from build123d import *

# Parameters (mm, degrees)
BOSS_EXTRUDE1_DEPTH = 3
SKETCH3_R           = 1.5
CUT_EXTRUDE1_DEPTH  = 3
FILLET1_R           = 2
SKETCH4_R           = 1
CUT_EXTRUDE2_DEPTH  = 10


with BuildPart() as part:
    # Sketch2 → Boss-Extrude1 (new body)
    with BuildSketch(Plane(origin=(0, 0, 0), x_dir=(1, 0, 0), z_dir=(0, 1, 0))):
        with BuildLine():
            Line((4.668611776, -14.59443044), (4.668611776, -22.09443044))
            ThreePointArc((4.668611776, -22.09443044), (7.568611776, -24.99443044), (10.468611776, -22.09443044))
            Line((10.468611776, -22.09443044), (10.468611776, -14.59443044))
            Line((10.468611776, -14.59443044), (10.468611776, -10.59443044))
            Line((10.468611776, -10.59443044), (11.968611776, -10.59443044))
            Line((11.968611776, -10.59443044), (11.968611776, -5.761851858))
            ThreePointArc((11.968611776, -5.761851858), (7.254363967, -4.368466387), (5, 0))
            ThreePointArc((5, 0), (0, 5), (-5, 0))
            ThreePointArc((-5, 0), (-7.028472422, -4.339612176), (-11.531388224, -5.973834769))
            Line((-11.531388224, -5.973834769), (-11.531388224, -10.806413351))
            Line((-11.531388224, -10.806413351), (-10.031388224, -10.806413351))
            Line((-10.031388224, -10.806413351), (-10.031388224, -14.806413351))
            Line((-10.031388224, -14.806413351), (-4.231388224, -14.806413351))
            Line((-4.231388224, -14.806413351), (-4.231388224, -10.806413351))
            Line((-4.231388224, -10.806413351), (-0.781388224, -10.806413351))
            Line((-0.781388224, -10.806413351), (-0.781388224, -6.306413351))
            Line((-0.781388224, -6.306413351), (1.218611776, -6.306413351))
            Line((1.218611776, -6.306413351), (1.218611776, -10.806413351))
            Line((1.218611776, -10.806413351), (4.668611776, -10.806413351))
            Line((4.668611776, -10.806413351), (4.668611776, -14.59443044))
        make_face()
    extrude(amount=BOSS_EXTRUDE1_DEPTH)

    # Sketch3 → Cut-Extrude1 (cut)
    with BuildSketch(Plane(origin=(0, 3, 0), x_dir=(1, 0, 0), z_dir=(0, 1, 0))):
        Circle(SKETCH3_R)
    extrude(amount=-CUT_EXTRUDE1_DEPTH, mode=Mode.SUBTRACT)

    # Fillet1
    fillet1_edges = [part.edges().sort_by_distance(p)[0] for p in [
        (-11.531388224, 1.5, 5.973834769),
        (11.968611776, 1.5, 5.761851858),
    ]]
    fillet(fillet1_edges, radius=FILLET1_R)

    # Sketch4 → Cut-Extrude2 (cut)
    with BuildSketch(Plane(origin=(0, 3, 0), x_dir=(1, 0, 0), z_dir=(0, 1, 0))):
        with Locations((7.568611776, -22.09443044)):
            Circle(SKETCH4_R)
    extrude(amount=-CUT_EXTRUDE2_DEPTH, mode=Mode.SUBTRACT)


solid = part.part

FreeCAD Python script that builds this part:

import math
import FreeCAD as App
import Part
import Sketcher

V = App.Vector
Q = App.Units.Quantity


def edges_at(feature, points):
    """Names of the edges that pass closest to the given points."""
    edges = feature.Shape.Edges
    near = lambda p: min(range(len(edges)), key=lambda i: edges[i].distToShape(Part.Vertex(*p))[0])
    return sorted({f"Edge{near(p) + 1}" for p in points})

doc = App.newDocument("Part")
params = doc.addObject("Spreadsheet::Sheet", "Params")
for row, (alias, value) in enumerate([
    ("sketch1_radius", "5 mm"),
    ("sketch1_radius2", "2.9 mm"),
    ("sketch1_width", "2 mm"),
    ("sketch1_height", "4 mm"),
    ("sketch1_radius3", "6.26 mm"),
    ("pad1_length", "3 mm"),
    ("sketch2_diameter", "3 mm"),
    ("pocket1_length", "3 mm"),
    ("fillet_radius", "2 mm"),
    ("sketch3_diameter", "2 mm"),
    ("pocket2_length", "10 mm"),
], start=1):
    params.set(f"A{row}", alias)
    params.set(f"B{row}", "=" + value)
    params.setAlias(f"B{row}", alias)

body = doc.addObject("PartDesign::Body", "Body")

# Sketch on XZ plane
sketch1 = body.newObject("Sketcher::SketchObject", "Sketch")
sketch1.AttachmentSupport = (doc.getObject("XZ_Plane"), [""])
sketch1.MapMode = "FlatFace"
sketch1.addGeometry([
    Part.ArcOfCircle(Part.Circle(V(7.6, 22.1, 0), V(0, 0, 1), 2.9), math.radians(0), math.radians(180)),  # 0
    Part.LineSegment(V(10.5, 22.1, 0), V(10.5, 10.6, 0)),  # 1
    Part.LineSegment(V(10.5, 10.6, 0), V(12, 10.6, 0)),  # 2
    Part.LineSegment(V(12, 10.6, 0), V(12, 5.8, 0)),  # 3
    Part.ArcOfCircle(Part.Circle(V(11.2, -0.5, 0), V(0, 0, 1), 6.3), math.radians(83), math.radians(176)),  # 4
    Part.ArcOfCircle(Part.Circle(V(0, 0, 0), V(0, 0, 1), 5), math.radians(180), math.radians(360)),  # 5
    Part.ArcOfCircle(Part.Circle(V(-11.3, -0.3, 0), V(0, 0, 1), 6.3), math.radians(3), math.radians(93)),  # 6
    Part.LineSegment(V(-11.5, 6, 0), V(-11.5, 10.8, 0)),  # 7
    Part.LineSegment(V(-11.5, 10.8, 0), V(-10, 10.8, 0)),  # 8
    Part.LineSegment(V(-10, 10.8, 0), V(-10, 14.8, 0)),  # 9
    Part.LineSegment(V(-10, 14.8, 0), V(-4.2, 14.8, 0)),  # 10
    Part.LineSegment(V(-4.2, 14.8, 0), V(-4.2, 10.8, 0)),  # 11
    Part.LineSegment(V(-4.2, 10.8, 0), V(-0.8, 10.8, 0)),  # 12
    Part.LineSegment(V(-0.8, 10.8, 0), V(-0.8, 6.3, 0)),  # 13
    Part.LineSegment(V(-0.8, 6.3, 0), V(1.2, 6.3, 0)),  # 14
    Part.LineSegment(V(1.2, 6.3, 0), V(1.2, 10.8, 0)),  # 15
    Part.LineSegment(V(1.2, 10.8, 0), V(4.7, 10.8, 0)),  # 16
    Part.LineSegment(V(4.7, 10.8, 0), V(4.7, 22.1, 0)),  # 17
], False)
sketch1.addConstraint([
    Sketcher.Constraint("Tangent", 0, 1, 1, 1),
    Sketcher.Constraint("Coincident", 1, 2, 2, 1),
    Sketcher.Constraint("Coincident", 2, 2, 3, 1),
    Sketcher.Constraint("Coincident", 3, 2, 4, 1),
    Sketcher.Constraint("Coincident", 4, 2, 5, 2),
    Sketcher.Constraint("Coincident", 5, 1, 6, 1),
    Sketcher.Constraint("Coincident", 6, 2, 7, 1),
    Sketcher.Constraint("Coincident", 7, 2, 8, 1),
    Sketcher.Constraint("Coincident", 8, 2, 9, 1),
    Sketcher.Constraint("Coincident", 9, 2, 10, 1),
    Sketcher.Constraint("Coincident", 10, 2, 11, 1),
    Sketcher.Constraint("Coincident", 11, 2, 12, 1),
    Sketcher.Constraint("Coincident", 12, 2, 13, 1),
    Sketcher.Constraint("Coincident", 13, 2, 14, 1),
    Sketcher.Constraint("Coincident", 14, 2, 15, 1),
    Sketcher.Constraint("Coincident", 15, 2, 16, 1),
    Sketcher.Constraint("Coincident", 16, 2, 17, 1),
    Sketcher.Constraint("Tangent", 17, 2, 0, 2),
    Sketcher.Constraint("Vertical", 1),
    Sketcher.Constraint("Horizontal", 2),
    Sketcher.Constraint("Vertical", 3),
    Sketcher.Constraint("Vertical", 7),
    Sketcher.Constraint("Horizontal", 8),
    Sketcher.Constraint("Vertical", 9),
    Sketcher.Constraint("Horizontal", 10),
    Sketcher.Constraint("Vertical", 11),
    Sketcher.Constraint("Horizontal", 12),
    Sketcher.Constraint("Vertical", 13),
    Sketcher.Constraint("Horizontal", 14),
    Sketcher.Constraint("Vertical", 15),
    Sketcher.Constraint("Horizontal", 16),
    Sketcher.Constraint("Vertical", 17),
    Sketcher.Constraint("Coincident", 5, 3, -1, 1),
    Sketcher.Constraint("PointOnObject", 4, 2, -1),
    Sketcher.Constraint("PointOnObject", 5, 1, -1),
    Sketcher.Constraint("Horizontal", 8, 2, 11, 2),
    Sketcher.Constraint("Horizontal", 12, 2, 15, 2),
    Sketcher.Constraint("Equal", 2, 8),
    Sketcher.Constraint("Equal", 12, 16),
    Sketcher.Constraint("Equal", 3, 7),
    Sketcher.Constraint("Radius", 5, Q("5 mm")),
    Sketcher.Constraint("Radius", 0, Q("2.9 mm")),
    Sketcher.Constraint("DistanceX", 14, 1, 14, 2, Q("2 mm")),
    Sketcher.Constraint("DistanceY", 9, 1, 9, 2, Q("4 mm")),
    Sketcher.Constraint("Radius", 4, Q("6.26 mm")),
    Sketcher.Constraint("DistanceX", 2, 1, 2, 2, Q("1.5 mm")),
    Sketcher.Constraint("DistanceX", 10, 1, 10, 2, Q("5.8 mm")),
    Sketcher.Constraint("DistanceY", 1, 2, 1, 1, Q("11.5 mm")),
    Sketcher.Constraint("DistanceY", 13, 2, 13, 1, Q("4.5 mm")),
    Sketcher.Constraint("DistanceX", 6, 2, 1, 2, Q("22 mm")),
    Sketcher.Constraint("Radius", 6, Q("6.258823 mm")),
    Sketcher.Constraint("DistanceY", 3, 2, 3, 1, Q("4.832579 mm")),
    Sketcher.Constraint("DistanceY", 17, 1, 17, 2, Q("11.288017 mm")),
    Sketcher.Constraint("DistanceX", -1, 1, 0, 3, Q("7.568612 mm")),
    Sketcher.Constraint("DistanceY", -1, 1, 0, 3, Q("22.09443 mm")),
])
sketch1.setExpression("Constraints[40]", "Params.sketch1_radius")
sketch1.setExpression("Constraints[41]", "Params.sketch1_radius2")
sketch1.setExpression("Constraints[42]", "Params.sketch1_width")
sketch1.setExpression("Constraints[43]", "Params.sketch1_height")
sketch1.setExpression("Constraints[44]", "Params.sketch1_radius3")
pad1 = body.newObject("PartDesign::Pad", "Pad")
pad1.Profile = sketch1
pad1.setExpression("Length", "Params.pad1_length")
pad1.Reversed = True

# Sketch on XZ plane
sketch2 = body.newObject("Sketcher::SketchObject", "Sketch001")
sketch2.AttachmentSupport = (doc.getObject("XZ_Plane"), [""])
sketch2.MapMode = "FlatFace"
sketch2.AttachmentOffset = App.Placement(V(0, 0, -3), App.Rotation())
sketch2.addGeometry(Part.Circle(V(0, 0, 0), V(0, 0, 1), 1.5), False)
sketch2.addConstraint([
    Sketcher.Constraint("Coincident", 0, 3, -1, 1),
    Sketcher.Constraint("Diameter", 0, Q("3 mm")),
])
sketch2.setExpression("Constraints[1]", "Params.sketch2_diameter")
pocket1 = body.newObject("PartDesign::Pocket", "Pocket")
pocket1.Profile = sketch2
pocket1.setExpression("Length", "Params.pocket1_length")
pocket1.Reversed = True
doc.recompute()

fillet = body.newObject("PartDesign::Fillet", "Fillet")
fillet.Base = (pocket1, edges_at(pocket1, [(-11.531, 1.5, 5.974), (11.969, 1.5, 5.762)]))
fillet.setExpression("Radius", "Params.fillet_radius")

# Sketch on XZ plane
sketch3 = body.newObject("Sketcher::SketchObject", "Sketch002")
sketch3.AttachmentSupport = (doc.getObject("XZ_Plane"), [""])
sketch3.MapMode = "FlatFace"
sketch3.AttachmentOffset = App.Placement(V(0, 0, -3), App.Rotation())
sketch3.addGeometry(Part.Circle(V(7.6, 22.1, 0), V(0, 0, 1), 1), False)
sketch3.addConstraint([
    Sketcher.Constraint("Diameter", 0, Q("2 mm")),
    Sketcher.Constraint("DistanceX", -1, 1, 0, 3, Q("7.568612 mm")),
    Sketcher.Constraint("DistanceY", -1, 1, 0, 3, Q("22.09443 mm")),
])
sketch3.setExpression("Constraints[0]", "Params.sketch3_diameter")
pocket2 = body.newObject("PartDesign::Pocket", "Pocket001")
pocket2.Profile = sketch3
pocket2.setExpression("Length", "Params.pocket2_length")
pocket2.Reversed = True

doc.recompute()
